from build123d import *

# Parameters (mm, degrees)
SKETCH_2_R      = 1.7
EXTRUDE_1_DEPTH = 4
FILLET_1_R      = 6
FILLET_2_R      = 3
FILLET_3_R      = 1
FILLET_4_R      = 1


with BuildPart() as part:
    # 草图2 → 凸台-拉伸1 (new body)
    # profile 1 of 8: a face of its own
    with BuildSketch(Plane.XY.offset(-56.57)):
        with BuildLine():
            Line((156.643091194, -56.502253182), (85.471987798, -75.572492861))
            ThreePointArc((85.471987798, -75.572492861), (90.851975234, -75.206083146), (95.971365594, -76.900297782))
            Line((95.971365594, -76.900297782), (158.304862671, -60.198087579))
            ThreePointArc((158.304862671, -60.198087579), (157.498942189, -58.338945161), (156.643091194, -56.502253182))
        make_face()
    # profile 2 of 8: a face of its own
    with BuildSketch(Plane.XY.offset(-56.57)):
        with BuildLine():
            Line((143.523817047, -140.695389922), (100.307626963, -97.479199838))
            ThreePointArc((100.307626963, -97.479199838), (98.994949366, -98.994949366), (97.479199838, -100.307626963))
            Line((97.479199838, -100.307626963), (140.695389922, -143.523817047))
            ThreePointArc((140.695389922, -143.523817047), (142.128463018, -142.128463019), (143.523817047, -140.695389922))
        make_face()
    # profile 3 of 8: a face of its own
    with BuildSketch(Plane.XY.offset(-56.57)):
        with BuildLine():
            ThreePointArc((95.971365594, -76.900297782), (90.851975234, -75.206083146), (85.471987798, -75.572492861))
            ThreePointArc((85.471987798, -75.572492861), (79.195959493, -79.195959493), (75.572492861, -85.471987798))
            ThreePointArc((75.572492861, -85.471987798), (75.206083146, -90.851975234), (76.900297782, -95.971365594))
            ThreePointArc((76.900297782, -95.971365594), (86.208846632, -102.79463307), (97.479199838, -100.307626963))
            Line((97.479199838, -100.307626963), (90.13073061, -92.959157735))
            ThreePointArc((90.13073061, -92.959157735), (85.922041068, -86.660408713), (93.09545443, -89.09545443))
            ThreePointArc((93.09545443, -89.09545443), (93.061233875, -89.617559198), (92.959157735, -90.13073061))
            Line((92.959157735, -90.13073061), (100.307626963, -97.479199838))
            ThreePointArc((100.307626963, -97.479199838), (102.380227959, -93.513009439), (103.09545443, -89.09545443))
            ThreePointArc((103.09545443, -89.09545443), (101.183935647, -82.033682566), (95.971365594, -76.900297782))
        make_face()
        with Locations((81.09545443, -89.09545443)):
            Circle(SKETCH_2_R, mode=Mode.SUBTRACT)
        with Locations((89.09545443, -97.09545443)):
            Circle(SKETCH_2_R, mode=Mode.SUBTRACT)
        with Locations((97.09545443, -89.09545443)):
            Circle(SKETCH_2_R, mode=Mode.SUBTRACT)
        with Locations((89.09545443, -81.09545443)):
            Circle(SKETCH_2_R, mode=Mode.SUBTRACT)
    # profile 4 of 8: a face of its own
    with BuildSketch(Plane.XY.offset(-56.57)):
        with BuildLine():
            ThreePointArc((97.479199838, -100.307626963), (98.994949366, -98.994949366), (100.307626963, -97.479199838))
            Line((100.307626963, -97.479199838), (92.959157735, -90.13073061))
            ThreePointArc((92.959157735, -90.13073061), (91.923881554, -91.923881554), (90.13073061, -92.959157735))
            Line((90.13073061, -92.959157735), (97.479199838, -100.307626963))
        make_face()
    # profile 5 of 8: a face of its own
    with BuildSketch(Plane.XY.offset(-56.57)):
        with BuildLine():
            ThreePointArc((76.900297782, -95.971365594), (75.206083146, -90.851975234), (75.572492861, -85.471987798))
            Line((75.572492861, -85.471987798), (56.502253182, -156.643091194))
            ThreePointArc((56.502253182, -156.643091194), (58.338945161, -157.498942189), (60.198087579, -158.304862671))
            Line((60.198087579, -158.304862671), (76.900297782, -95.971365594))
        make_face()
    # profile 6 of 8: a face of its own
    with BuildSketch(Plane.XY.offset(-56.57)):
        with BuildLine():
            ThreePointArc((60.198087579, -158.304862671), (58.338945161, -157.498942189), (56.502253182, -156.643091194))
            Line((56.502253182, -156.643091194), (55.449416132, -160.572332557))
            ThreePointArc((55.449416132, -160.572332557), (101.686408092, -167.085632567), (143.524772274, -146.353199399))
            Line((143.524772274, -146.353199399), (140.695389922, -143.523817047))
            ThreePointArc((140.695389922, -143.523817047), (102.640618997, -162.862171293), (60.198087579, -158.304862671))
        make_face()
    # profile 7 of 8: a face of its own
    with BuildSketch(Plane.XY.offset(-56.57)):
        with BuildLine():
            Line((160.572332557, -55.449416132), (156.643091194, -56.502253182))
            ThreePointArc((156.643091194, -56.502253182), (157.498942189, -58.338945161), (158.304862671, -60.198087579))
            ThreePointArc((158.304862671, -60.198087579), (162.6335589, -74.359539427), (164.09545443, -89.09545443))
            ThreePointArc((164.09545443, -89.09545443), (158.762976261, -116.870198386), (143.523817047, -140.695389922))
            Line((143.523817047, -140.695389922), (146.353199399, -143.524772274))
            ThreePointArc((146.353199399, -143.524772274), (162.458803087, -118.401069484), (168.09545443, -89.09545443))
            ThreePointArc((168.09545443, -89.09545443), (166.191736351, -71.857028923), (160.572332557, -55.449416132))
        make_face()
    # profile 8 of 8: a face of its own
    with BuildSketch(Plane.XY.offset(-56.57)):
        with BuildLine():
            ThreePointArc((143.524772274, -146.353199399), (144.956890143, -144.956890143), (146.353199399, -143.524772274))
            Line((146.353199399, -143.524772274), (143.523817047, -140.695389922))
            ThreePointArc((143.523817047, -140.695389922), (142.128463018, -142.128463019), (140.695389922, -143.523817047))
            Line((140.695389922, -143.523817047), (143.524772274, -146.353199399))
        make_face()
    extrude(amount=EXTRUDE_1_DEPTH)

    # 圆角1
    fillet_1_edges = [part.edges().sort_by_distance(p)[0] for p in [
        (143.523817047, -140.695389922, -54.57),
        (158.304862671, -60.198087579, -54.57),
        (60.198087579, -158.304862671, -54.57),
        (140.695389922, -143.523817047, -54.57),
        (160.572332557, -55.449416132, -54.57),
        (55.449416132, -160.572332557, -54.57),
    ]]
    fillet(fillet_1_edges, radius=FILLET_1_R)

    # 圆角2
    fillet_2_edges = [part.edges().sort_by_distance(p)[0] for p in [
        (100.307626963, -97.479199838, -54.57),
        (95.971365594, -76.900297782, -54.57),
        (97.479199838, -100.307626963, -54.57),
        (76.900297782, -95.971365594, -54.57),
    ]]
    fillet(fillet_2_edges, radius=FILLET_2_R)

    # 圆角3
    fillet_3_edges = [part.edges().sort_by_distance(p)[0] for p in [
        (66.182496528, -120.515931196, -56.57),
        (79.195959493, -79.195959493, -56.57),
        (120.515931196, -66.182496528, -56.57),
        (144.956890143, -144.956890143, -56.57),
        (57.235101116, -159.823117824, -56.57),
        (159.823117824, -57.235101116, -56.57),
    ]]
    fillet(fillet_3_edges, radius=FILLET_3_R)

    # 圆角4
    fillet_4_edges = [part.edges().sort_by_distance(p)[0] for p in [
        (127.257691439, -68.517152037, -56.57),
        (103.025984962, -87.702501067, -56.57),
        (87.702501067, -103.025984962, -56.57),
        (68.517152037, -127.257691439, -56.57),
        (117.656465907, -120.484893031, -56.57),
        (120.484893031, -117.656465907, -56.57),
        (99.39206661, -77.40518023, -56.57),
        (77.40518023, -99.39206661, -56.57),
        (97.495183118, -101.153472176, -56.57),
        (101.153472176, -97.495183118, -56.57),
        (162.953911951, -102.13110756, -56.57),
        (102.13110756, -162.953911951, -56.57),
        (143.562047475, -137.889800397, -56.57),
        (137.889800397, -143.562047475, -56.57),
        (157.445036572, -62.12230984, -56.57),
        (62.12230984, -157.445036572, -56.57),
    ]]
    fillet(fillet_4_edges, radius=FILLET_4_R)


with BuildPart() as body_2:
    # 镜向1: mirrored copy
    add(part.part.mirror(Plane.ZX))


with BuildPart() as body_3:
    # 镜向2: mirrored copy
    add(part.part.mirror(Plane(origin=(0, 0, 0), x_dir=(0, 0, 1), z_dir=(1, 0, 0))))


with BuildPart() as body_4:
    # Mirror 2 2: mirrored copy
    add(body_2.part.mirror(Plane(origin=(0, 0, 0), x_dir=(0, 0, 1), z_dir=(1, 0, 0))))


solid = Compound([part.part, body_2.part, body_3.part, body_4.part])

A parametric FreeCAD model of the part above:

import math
import FreeCAD as App
import Part
import Sketcher

V = App.Vector
Q = App.Units.Quantity


def edges_at(feature, points):
    """Names of the edges that pass closest to the given points."""
    edges = feature.Shape.Edges
    near = lambda p: min(range(len(edges)), key=lambda i: edges[i].distToShape(Part.Vertex(*p))[0])
    return sorted({f"Edge{near(p) + 1}" for p in points})

doc = App.newDocument("Part")
params = doc.addObject("Spreadsheet::Sheet", "Params")
for row, (alias, value) in enumerate([
    ("sketch1_radius", "14 mm"),
    ("sketch1_radius2", "79 mm"),
    ("sketch1_radius3", "75 mm"),
    ("sketch1_radius4", "4 mm"),
    ("sketch1_diameter", "3.4 mm"),
    ("pad1_length", "4 mm"),
    ("fillet_radius", "6 mm"),
    ("fillet2_radius", "3 mm"),
    ("fillet3_radius", "1 mm"),
    ("fillet4_radius", "1 mm"),
], start=1):
    params.set(f"A{row}", alias)
    params.set(f"B{row}", "=" + value)
    params.setAlias(f"B{row}", alias)

body = doc.addObject("PartDesign::Body", "Body")

# Sketch on XY plane
sketch1 = body.newObject("Sketcher::SketchObject", "Sketch")
sketch1.AttachmentSupport = (doc.getObject("XY_Plane"), [""])
sketch1.MapMode = "FlatFace"
sketch1.AttachmentOffset = App.Placement(V(0, 0, -56.57), App.Rotation())
sketch1.addGeometry([
    Part.LineSegment(V(156.6, -56.5, 0), V(85.5, -75.6, 0)),  # 0
    Part.ArcOfCircle(Part.Circle(V(89.1, -89.1, 0), V(0, 0, 1), 14), math.radians(105), math.radians(165)),  # 1
    Part.LineSegment(V(75.6, -85.5, 0), V(56.5, -156.6, 0)),  # 2
    Part.LineSegment(V(56.5, -156.6, 0), V(55.4, -160.6, 0)),  # 3
    Part.ArcOfCircle(Part.Circle(V(89.1, -89.1, 0), V(0, 0, 1), 79), math.radians(-115), math.radians(-46)),  # 4
    Part.ArcOfCircle(Part.Circle(V(89.1, -89.1, 0), V(0, 0, 1), 79), math.radians(-46.45), math.radians(-43.55)),  # 5
    Part.ArcOfCircle(Part.Circle(V(89.1, -89.1, 0), V(0, 0, 1), 79), math.radians(-44), math.radians(0)),  # 6
    Part.ArcOfCircle(Part.Circle(V(89.1, -89.1, 0), V(0, 0, 1), 79), math.radians(0), math.radians(25)),  # 7
    Part.LineSegment(V(160.6, -55.4, 0), V(156.6, -56.5, 0)),  # 8
    Part.LineSegment(V(96, -76.9, 0), V(158.3, -60.2, 0)),  # 9
    Part.ArcOfCircle(Part.Circle(V(89.1, -89.1, 0), V(0, 0, 1), 75), math.radians(0), math.radians(23)),  # 10
    Part.ArcOfCircle(Part.Circle(V(89.1, -89.1, 0), V(0, 0, 1), 75), math.radians(-43), math.radians(0)),  # 11
    Part.LineSegment(V(143.5, -140.7, 0), V(100.3, -97.5, 0)),  # 12
    Part.ArcOfCircle(Part.Circle(V(89.1, -89.1, 0), V(0, 0, 1), 14), math.radians(-37), math.radians(0)),  # 13
    Part.ArcOfCircle(Part.Circle(V(89.1, -89.1, 0), V(0, 0, 1), 14), math.radians(0), math.radians(61)),  # 14
    Part.Circle(V(89.1, -81.1, 0), V(0, 0, 1), 1.7),  # 15
    Part.ArcOfCircle(Part.Circle(V(89.1, -89.1, 0), V(0, 0, 1), 14), math.radians(-151), math.radians(-53)),  # 16
    Part.LineSegment(V(97.5, -100.3, 0), V(140.7, -143.5, 0)),  # 17
    Part.ArcOfCircle(Part.Circle(V(89.1, -89.1, 0), V(0, 0, 1), 75), math.radians(-113), math.radians(-47)),  # 18
    Part.LineSegment(V(60.2, -158.3, 0), V(76.9, -96, 0)),  # 19
    Part.ArcOfCircle(Part.Circle(V(89.1, -89.1, 0), V(0, 0, 1), 4), math.radians(-15), math.radians(0)),  # 20
    Part.ArcOfCircle(Part.Circle(V(89.1, -89.1, 0), V(0, 0, 1), 4), math.radians(-75), math.radians(-15)),  # 21
    Part.ArcOfCircle(Part.Circle(V(89.1, -89.1, 0), V(0, 0, 1), 4), math.radians(0), math.radians(285)),  # 22
    Part.Circle(V(89.1, -97.1, 0), V(0, 0, 1), 1.7),  # 23
    Part.Circle(V(81.1, -89.1, 0), V(0, 0, 1), 1.7),  # 24
    Part.Circle(V(97.1, -89.1, 0), V(0, 0, 1), 1.7),  # 25
], False)
sketch1.addConstraint([
    Sketcher.Constraint("Tangent", 0, 2, 1, 1),
    Sketcher.Constraint("Tangent", 1, 2, 2, 1),
    Sketcher.Constraint("Coincident", 2, 2, 3, 1),
    Sketcher.Constraint("Coincident", 3, 2, 4, 1),
    Sketcher.Constraint("Tangent", 4, 2, 5, 1),
    Sketcher.Constraint("Tangent", 5, 2, 6, 1),
    Sketcher.Constraint("Tangent", 6, 2, 7, 1),
    Sketcher.Constraint("Coincident", 7, 2, 8, 1),
    Sketcher.Constraint("Coincident", 8, 2, 0, 1),
    Sketcher.Constraint("Coincident", 9, 2, 10, 2),
    Sketcher.Constraint("Tangent", 10, 1, 11, 2),
    Sketcher.Constraint("Coincident", 11, 1, 12, 1),
    Sketcher.Constraint("Coincident", 12, 2, 13, 1),
    Sketcher.Constraint("Tangent", 13, 2, 14, 1),
    Sketcher.Constraint("Coincident", 14, 2, 9, 1),
    Sketcher.Constraint("Coincident", 16, 2, 17, 1),
    Sketcher.Constraint("Coincident", 17, 2, 18, 2),
    Sketcher.Constraint("Coincident", 18, 1, 19, 1),
    Sketcher.Constraint("Coincident", 19, 2, 16, 1),
    Sketcher.Constraint("Tangent", 20, 1, 21, 2),
    Sketcher.Constraint("Tangent", 21, 1, 22, 2),
    Sketcher.Constraint("Tangent", 22, 1, 20, 2),
    Sketcher.Constraint("Coincident", 4, 3, 1, 3),
    Sketcher.Constraint("Coincident", 6, 3, 1, 3),
    Sketcher.Constraint("Coincident", 10, 3, 1, 3),
    Sketcher.Constraint("Coincident", 13, 3, 1, 3),
    Sketcher.Constraint("Coincident", 16, 3, 1, 3),
    Sketcher.Constraint("Coincident", 18, 3, 1, 3),
    Sketcher.Constraint("Coincident", 20, 3, 1, 3),
    Sketcher.Constraint("Equal", 6, 7),
    Sketcher.Constraint("Equal", 10, 11),
    Sketcher.Constraint("Equal", 1, 13),
    Sketcher.Constraint("Equal", 13, 14),
    Sketcher.Constraint("Equal", 14, 16),
    Sketcher.Constraint("Equal", 11, 18),
    Sketcher.Constraint("Equal", 15, 23),
    Sketcher.Constraint("Equal", 23, 24),
    Sketcher.Constraint("Equal", 24, 25),
    Sketcher.Constraint("Parallel", 2, 3),
    Sketcher.Constraint("Parallel", 0, 8),
    Sketcher.Constraint("Parallel", 8, 9),
    Sketcher.Constraint("Parallel", 12, 17),
    Sketcher.Constraint("Parallel", 3, 19),
    Sketcher.Constraint("Horizontal", 22, 3, 24, 3),
    Sketcher.Constraint("Horizontal", 24, 3, 25, 3),
    Sketcher.Constraint("Horizontal", 25, 3, 6, 2),
    Sketcher.Constraint("Horizontal", 6, 2, 10, 1),
    Sketcher.Constraint("Horizontal", 10, 1, 13, 2),
    Sketcher.Constraint("Horizontal", 13, 2, 22, 1),
    Sketcher.Constraint("Vertical", 14, 3, 15, 3),
    Sketcher.Constraint("Vertical", 22, 3, 23, 3),
    Sketcher.Constraint("Equal", 0, 2),
    Sketcher.Constraint("Equal", 12, 17),
    Sketcher.Constraint("Equal", 9, 19),
    Sketcher.Constraint("Radius", 1, 14.0),
    Sketcher.Constraint("Radius", 4, 79.0),
    Sketcher.Constraint("Radius", 10, 75.0),
    Sketcher.Constraint("Radius", 20, 4.0),
    Sketcher.Constraint("Diameter", 15, 3.4),
    Sketcher.Constraint("Angle", 0, Q("-165 deg")),
    Sketcher.Constraint("Angle", 2, Q("-105 deg")),
    Sketcher.Constraint("Angle", 12, Q("135 deg")),
    Sketcher.Constraint("DistanceY", 5, 3, 15, 3, 7.999999),
    Sketcher.Constraint("DistanceY", 23, 3, 1, 3, 8.0),
    Sketcher.Constraint("DistanceX", 24, 3, 5, 3, 7.999999),
    Sketcher.Constraint("DistanceX", 7, 3, 25, 3, 8.0),
    Sketcher.Constraint("DistanceY", 4, 2, -1, 1, 146.353199),
    Sketcher.Constraint("DistanceX", -1, 1, 5, 2, 146.353199),
    Sketcher.Constraint("DistanceY", 12, 2, -1, 1, 97.4792),
    Sketcher.Constraint("DistanceX", -1, 1, 16, 2, 97.4792),
    Sketcher.Constraint("DistanceX", 2, 2, 23, 3, 32.593201),
    Sketcher.Constraint("DistanceY", 2, 2, -1, 1, 156.643091),
    Sketcher.Constraint("DistanceY", 20, 1, -1, 1, 90.130731),
    Sketcher.Constraint("DistanceX", -1, 1, 21, 1, 90.130731),
    Sketcher.Constraint("DistanceX", 8, 2, 9, 2, 1.661771),
])
sketch1.setExpression("Constraints[54]", "Params.sketch1_radius")
sketch1.setExpression("Constraints[55]", "Params.sketch1_radius2")
sketch1.setExpression("Constraints[56]", "Params.sketch1_radius3")
sketch1.setExpression("Constraints[57]", "Params.sketch1_radius4")
sketch1.setExpression("Constraints[58]", "Params.sketch1_diameter")
pad1 = body.newObject("PartDesign::Pad", "Pad")
pad1.Profile = sketch1
pad1.setExpression("Length", "Params.pad1_length")
doc.recompute()

fillet = body.newObject("PartDesign::Fillet", "Fillet")
fillet.Base = (pad1, edges_at(pad1, [
    (143.524, -140.695, -54.57),
    (158.305, -60.198, -54.57),
    (60.198, -158.305, -54.57),
    (140.695, -143.524, -54.57),
    (160.572, -55.449, -54.57),
    (55.449, -160.572, -54.57),
]))
fillet.setExpression("Radius", "Params.fillet_radius")
doc.recompute()

fillet2 = body.newObject("PartDesign::Fillet", "Fillet001")
fillet2.Base = (fillet, edges_at(fillet, [
    (100.308, -97.479, -54.57),
    (95.971, -76.9, -54.57),
    (97.479, -100.308, -54.57),
    (76.9, -95.971, -54.57),
]))
fillet2.setExpression("Radius", "Params.fillet2_radius")
doc.recompute()

fillet3 = body.newObject("PartDesign::Fillet", "Fillet002")
fillet3.Base = (fillet2, edges_at(fillet2, [
    (66.182, -120.516, -56.57),
    (79.196, -79.196, -56.57),
    (120.516, -66.182, -56.57),
    (144.957, -144.957, -56.57),
    (57.235, -159.823, -56.57),
    (159.823, -57.235, -56.57),
]))
fillet3.setExpression("Radius", "Params.fillet3_radius")
doc.recompute()

fillet4 = body.newObject("PartDesign::Fillet", "Fillet003")
fillet4.Base = (fillet3, edges_at(fillet3, [
    (127.258, -68.517, -56.57),
    (102.28, -84.386, -56.57),
    (87.703, -103.026, -56.57),
    (68.517, -127.258, -56.57),
    (117.656, -120.485, -56.57),
    (120.485, -117.656, -56.57),
    (99.392, -77.405, -56.57),
    (77.405, -99.392, -56.57),
    (97.495, -101.153, -56.57),
    (101.153, -97.495, -56.57),
    (159.936, -113.725, -56.57),
    (102.131, -162.954, -56.57),
    (143.562, -137.89, -56.57),
    (137.89, -143.562, -56.57),
    (157.445, -62.122, -56.57),
    (62.122, -157.445, -56.57),
]))
fillet4.setExpression("Radius", "Params.fillet4_radius")
body2 = doc.addObject("PartDesign::Body", "Body001")
doc.recompute()

mirroring = doc.addObject("Part::Mirroring", "Mirroring")
mirroring.Source = body
mirroring.Base = V(0, 0, 0)
mirroring.Normal = V(0, 1, 0)
body2.BaseFeature = mirroring
doc.recompute()
body3 = doc.addObject("PartDesign::Body", "Body002")
doc.recompute()

mirroring2 = doc.addObject("Part::Mirroring", "Mirroring001")
mirroring2.Source = body
mirroring2.Base = V(0, 0, 0)
mirroring2.Normal = V(1, 0, 0)
body3.BaseFeature = mirroring2
doc.recompute()
body4 = doc.addObject("PartDesign::Body", "Body003")
doc.recompute()

mirroring3 = doc.addObject("Part::Mirroring", "Mirroring002")
mirroring3.Source = body2
mirroring3.Base = V(0, 0, 0)
mirroring3.Normal = V(1, 0, 0)
body4.BaseFeature = mirroring3
doc.recompute()
mirroring.Visibility = False
mirroring2.Visibility = False
mirroring3.Visibility = False

doc.recompute()
